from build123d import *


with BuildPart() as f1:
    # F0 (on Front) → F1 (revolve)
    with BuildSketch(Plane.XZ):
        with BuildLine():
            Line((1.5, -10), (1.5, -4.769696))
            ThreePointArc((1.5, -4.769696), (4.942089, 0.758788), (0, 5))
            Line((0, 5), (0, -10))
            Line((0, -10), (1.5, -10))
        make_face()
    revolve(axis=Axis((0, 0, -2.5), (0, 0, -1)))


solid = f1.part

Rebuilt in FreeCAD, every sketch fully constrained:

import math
import FreeCAD as App
import Part
import Sketcher

V = App.Vector

doc = App.newDocument("Part")
params = doc.addObject("Spreadsheet::Sheet", "Params")
for row, (alias, value) in enumerate([
    ("sketch1_radius", "5 mm"),
    ("sketch1_height", "15 mm"),
    ("sketch1_width", "1.5 mm"),
    ("revolution_angle", "360 deg"),
], start=1):
    params.set(f"A{row}", alias)
    params.set(f"B{row}", "=" + value)
    params.setAlias(f"B{row}", alias)

body = doc.addObject("PartDesign::Body", "Body")

# Sketch on XZ plane
sketch1 = doc.addObject("Sketcher::SketchObject", "Sketch")
body.addObject(sketch1)
sketch1.AttachmentSupport = (doc.XZ_Plane, [""])
sketch1.MapMode = "FlatFace"
sketch1.addGeometry(Part.LineSegment(V(1.5, -10, 0), V(1.5, -4.8, 0)), False)
sketch1.addGeometry(Part.ArcOfCircle(Part.Circle(V(0, 0, 0), V(0, 0, 1), 5), math.radians(-73), math.radians(90)), False)
sketch1.addGeometry(Part.LineSegment(V(0, 5, 0), V(0, -10, 0)), False)
sketch1.addGeometry(Part.LineSegment(V(0, -10, 0), V(1.5, -10, 0)), False)
sketch1.addConstraint(Sketcher.Constraint("Coincident", 0, 2, 1, 1))
sketch1.addConstraint(Sketcher.Constraint("Coincident", 1, 2, 2, 1))
sketch1.addConstraint(Sketcher.Constraint("Coincident", 2, 2, 3, 1))
sketch1.addConstraint(Sketcher.Constraint("Coincident", 3, 2, 0, 1))
sketch1.addConstraint(Sketcher.Constraint("Vertical", 0))
sketch1.addConstraint(Sketcher.Constraint("Vertical", 2))
sketch1.addConstraint(Sketcher.Constraint("Horizontal", 3))
sketch1.addConstraint(Sketcher.Constraint("Coincident", 1, 3, -1, 1))
sketch1.addConstraint(Sketcher.Constraint("PointOnObject", 1, 2, -2))
sketch1.addConstraint(Sketcher.Constraint("Radius", 1, 5.0))
sketch1.addConstraint(Sketcher.Constraint("DistanceY", 2, 2, 2, 1, 15.0))
sketch1.addConstraint(Sketcher.Constraint("DistanceX", 3, 1, 3, 2, 1.5))
sketch1.setExpression("Constraints[9]", "Params.sketch1_radius")
sketch1.setExpression("Constraints[10]", "Params.sketch1_height")
sketch1.setExpression("Constraints[11]", "Params.sketch1_width")
revolution = doc.addObject("PartDesign::Revolution", "Revolution")
body.addObject(revolution)
revolution.Profile = sketch1
revolution.ReferenceAxis = (sketch1, ["V_Axis"])
revolution.setExpression("Angle", "Params.revolution_angle")

doc.recompute()
